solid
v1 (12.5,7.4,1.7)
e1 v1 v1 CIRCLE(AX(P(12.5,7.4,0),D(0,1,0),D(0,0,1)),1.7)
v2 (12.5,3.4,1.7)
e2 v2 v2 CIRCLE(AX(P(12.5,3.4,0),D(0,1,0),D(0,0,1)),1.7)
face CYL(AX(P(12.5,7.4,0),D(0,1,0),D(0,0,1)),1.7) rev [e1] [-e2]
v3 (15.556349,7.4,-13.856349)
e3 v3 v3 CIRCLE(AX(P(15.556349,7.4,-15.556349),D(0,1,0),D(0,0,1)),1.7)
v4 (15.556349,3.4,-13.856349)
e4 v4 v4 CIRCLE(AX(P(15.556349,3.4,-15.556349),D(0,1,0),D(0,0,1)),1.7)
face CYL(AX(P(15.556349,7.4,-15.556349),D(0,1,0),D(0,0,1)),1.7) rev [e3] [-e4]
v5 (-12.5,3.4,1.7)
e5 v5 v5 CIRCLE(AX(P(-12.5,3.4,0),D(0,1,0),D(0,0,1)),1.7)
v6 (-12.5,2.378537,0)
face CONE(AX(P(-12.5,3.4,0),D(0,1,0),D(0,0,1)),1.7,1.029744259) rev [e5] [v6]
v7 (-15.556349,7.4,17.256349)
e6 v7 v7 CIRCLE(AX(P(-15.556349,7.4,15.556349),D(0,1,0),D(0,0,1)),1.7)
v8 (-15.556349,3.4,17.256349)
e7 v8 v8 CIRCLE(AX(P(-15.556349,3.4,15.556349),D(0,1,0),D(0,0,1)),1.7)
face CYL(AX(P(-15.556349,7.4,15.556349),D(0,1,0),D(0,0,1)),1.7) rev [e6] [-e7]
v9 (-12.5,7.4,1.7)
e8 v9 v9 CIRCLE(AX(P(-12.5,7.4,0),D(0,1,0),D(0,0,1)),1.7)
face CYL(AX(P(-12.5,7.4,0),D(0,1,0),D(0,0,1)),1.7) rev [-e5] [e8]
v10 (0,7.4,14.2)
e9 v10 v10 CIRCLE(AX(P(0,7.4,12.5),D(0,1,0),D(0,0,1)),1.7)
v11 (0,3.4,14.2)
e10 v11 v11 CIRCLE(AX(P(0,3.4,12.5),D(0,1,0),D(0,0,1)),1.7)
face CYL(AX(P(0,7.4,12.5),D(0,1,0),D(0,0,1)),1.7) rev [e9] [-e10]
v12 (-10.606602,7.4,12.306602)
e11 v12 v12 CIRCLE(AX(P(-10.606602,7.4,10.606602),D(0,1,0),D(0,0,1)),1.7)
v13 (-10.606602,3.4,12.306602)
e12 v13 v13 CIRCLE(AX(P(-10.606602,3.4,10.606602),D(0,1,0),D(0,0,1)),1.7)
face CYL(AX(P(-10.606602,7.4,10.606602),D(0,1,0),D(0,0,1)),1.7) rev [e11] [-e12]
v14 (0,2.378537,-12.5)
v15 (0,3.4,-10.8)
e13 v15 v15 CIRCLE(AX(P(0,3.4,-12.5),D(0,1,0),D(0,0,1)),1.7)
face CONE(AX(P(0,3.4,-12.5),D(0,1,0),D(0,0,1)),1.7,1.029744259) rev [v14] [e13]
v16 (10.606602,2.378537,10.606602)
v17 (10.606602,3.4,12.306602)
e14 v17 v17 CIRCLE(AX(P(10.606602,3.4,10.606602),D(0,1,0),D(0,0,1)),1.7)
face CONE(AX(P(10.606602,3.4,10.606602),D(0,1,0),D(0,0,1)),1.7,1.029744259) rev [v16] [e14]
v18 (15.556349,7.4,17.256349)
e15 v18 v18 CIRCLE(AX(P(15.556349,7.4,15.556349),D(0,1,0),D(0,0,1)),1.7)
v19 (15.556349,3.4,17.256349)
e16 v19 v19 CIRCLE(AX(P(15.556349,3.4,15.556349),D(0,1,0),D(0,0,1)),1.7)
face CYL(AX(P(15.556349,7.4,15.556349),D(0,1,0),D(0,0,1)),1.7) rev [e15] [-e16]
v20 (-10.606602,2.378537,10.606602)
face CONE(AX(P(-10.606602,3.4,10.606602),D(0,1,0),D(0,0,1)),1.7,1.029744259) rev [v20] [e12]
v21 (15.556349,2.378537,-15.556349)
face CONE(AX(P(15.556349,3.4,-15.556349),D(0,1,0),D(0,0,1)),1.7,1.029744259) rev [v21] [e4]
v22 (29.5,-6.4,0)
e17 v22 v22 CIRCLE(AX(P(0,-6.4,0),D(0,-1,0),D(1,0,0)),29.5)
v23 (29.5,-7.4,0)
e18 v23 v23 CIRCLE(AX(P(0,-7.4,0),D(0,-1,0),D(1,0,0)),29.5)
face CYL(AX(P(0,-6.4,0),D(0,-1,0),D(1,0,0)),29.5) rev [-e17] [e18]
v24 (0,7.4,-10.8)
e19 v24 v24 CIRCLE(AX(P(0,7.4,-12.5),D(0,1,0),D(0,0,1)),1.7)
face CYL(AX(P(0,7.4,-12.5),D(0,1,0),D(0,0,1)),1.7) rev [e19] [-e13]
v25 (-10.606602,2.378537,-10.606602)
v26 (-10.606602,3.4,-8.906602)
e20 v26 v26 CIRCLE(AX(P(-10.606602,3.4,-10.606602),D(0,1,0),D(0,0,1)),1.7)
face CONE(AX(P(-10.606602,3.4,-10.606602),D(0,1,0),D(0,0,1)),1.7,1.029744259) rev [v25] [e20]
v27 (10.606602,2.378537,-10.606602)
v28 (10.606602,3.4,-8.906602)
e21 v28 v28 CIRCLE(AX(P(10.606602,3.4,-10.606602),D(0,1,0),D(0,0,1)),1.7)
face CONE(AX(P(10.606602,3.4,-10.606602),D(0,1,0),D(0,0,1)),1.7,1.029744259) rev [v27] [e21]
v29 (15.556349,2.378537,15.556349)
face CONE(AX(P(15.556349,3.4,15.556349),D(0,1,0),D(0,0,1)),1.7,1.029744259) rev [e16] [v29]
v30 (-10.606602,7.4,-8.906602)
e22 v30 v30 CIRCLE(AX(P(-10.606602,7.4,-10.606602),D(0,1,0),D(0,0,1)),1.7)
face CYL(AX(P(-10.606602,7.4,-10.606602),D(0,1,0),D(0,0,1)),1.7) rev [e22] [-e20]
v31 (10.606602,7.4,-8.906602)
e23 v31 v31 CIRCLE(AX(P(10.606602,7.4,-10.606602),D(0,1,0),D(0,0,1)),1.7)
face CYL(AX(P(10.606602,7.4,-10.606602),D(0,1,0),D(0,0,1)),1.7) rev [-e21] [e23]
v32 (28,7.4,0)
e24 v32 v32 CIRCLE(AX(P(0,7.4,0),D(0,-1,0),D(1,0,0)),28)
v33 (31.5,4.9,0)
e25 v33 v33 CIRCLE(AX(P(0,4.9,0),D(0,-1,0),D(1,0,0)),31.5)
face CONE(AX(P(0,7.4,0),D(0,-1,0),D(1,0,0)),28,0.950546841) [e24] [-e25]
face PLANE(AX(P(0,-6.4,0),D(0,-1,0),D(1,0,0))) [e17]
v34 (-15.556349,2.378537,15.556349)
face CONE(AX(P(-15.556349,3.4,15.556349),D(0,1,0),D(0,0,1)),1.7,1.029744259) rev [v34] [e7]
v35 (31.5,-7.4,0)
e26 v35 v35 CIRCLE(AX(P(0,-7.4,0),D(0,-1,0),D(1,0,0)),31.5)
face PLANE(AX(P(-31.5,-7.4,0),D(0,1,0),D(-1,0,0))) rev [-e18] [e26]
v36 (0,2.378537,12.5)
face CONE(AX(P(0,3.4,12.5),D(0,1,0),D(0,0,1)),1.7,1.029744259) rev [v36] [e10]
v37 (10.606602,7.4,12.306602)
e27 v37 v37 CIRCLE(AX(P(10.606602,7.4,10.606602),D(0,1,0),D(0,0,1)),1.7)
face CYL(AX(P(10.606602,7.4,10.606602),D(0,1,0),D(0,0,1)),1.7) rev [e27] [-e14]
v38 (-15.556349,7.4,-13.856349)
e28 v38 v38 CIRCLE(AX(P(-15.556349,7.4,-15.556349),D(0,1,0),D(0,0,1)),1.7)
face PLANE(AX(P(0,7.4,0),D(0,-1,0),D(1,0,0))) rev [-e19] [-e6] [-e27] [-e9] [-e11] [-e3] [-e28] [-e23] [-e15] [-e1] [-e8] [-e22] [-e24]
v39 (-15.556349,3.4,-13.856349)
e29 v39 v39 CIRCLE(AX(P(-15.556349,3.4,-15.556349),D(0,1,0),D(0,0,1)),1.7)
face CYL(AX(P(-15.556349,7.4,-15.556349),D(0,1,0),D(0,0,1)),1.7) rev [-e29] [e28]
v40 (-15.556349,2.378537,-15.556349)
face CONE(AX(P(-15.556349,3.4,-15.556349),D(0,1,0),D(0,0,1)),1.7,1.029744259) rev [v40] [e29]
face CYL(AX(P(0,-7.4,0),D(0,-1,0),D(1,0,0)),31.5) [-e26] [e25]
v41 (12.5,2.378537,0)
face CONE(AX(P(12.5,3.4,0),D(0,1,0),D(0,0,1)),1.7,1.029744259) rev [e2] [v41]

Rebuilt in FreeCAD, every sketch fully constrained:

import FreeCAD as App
import Part
import Sketcher

V = App.Vector
Q = App.Units.Quantity


def add_polygon(sketch, points):
    """Adds a closed chain of lines whose ends are joined by coincident constraints."""
    first, n = sketch.GeometryCount, len(points)
    for a, b in zip(points, points[1:] + points[:1]):
        sketch.addGeometry(Part.LineSegment(App.Vector(*a, 0), App.Vector(*b, 0)), False)
    for i in range(n):
        sketch.addConstraint(Sketcher.Constraint("Coincident", first + i, 2, first + (i + 1) % n, 1))

doc = App.newDocument("Part")
body = doc.addObject("PartDesign::Body", "Body")

# Sketch on XY plane
sketch1 = body.newObject("Sketcher::SketchObject", "Sketch")
sketch1.AttachmentSupport = (doc.getObject("XY_Plane"), [""])
sketch1.MapMode = "FlatFace"
add_polygon(sketch1, [(0, -7.4), (0, 7.4), (-28, 7.4), (-31.5, 4.9), (-31.5, -7.4)])  # lines 0-4
sketch1.addConstraint(Sketcher.Constraint("Vertical", 0))
sketch1.addConstraint(Sketcher.Constraint("Horizontal", 1))
sketch1.addConstraint(Sketcher.Constraint("Vertical", 3))
sketch1.addConstraint(Sketcher.Constraint("Horizontal", 4))
sketch1.addConstraint(Sketcher.Constraint("Symmetric", 0, 2, 4, 2, -1, 1))
sketch1.addConstraint(Sketcher.Constraint("DistanceX", 1, 2, 1, 1, Q("28 mm")))
sketch1.addConstraint(Sketcher.Constraint("DistanceX", 4, 1, 4, 2, Q("31.5 mm")))
sketch1.addConstraint(Sketcher.Constraint("DistanceY", 0, 1, 0, 2, Q("14.8 mm")))
sketch1.addConstraint(Sketcher.Constraint("DistanceY", 3, 2, 3, 1, Q("12.3 mm")))
revolution = body.newObject("PartDesign::Revolution", "Revolution")
revolution.Profile = sketch1
revolution.ReferenceAxis = (sketch1, ["V_Axis"])
revolution.Angle = 360

# Sketch on XZ plane
sketch2 = body.newObject("Sketcher::SketchObject", "Sketch001")
sketch2.AttachmentSupport = (doc.getObject("XZ_Plane"), [""])
sketch2.MapMode = "FlatFace"
sketch2.AttachmentOffset = App.Placement(V(0, 0, -7.4), App.Rotation())
sketch2.addGeometry(Part.Circle(V(-15.556349, -15.556349, 0), V(0, 0, 1), 1.7), False)
sketch2.addGeometry(Part.Circle(V(-10.606602, -10.606602, 0), V(0, 0, 1), 1.7), False)
sketch2.addGeometry(Part.Circle(V(0, -12.5, 0), V(0, 0, 1), 1.7), False)
sketch2.addGeometry(Part.Circle(V(10.606602, -10.606602, 0), V(0, 0, 1), 1.7), False)
sketch2.addGeometry(Part.Circle(V(15.556349, -15.556349, 0), V(0, 0, 1), 1.7), False)
sketch2.addGeometry(Part.Circle(V(0, 12.5, 0), V(0, 0, 1), 1.7), False)
sketch2.addGeometry(Part.Circle(V(-12.5, 0, 0), V(0, 0, 1), 1.7), False)
sketch2.addGeometry(Part.Circle(V(12.5, 0, 0), V(0, 0, 1), 1.7), False)
sketch2.addGeometry(Part.Circle(V(10.606602, 10.606602, 0), V(0, 0, 1), 1.7), False)
sketch2.addGeometry(Part.Circle(V(-10.606602, 10.606602, 0), V(0, 0, 1), 1.7), False)
sketch2.addGeometry(Part.Circle(V(-15.556349, 15.556349, 0), V(0, 0, 1), 1.7), False)
sketch2.addGeometry(Part.Circle(V(15.556349, 15.556349, 0), V(0, 0, 1), 1.7), False)
sketch2.addConstraint(Sketcher.Constraint("Equal", 0, 1))
sketch2.addConstraint(Sketcher.Constraint("Equal", 1, 2))
sketch2.addConstraint(Sketcher.Constraint("Equal", 2, 3))
sketch2.addConstraint(Sketcher.Constraint("Equal", 3, 4))
sketch2.addConstraint(Sketcher.Constraint("Equal", 4, 5))
sketch2.addConstraint(Sketcher.Constraint("Equal", 5, 6))
sketch2.addConstraint(Sketcher.Constraint("Equal", 6, 7))
sketch2.addConstraint(Sketcher.Constraint("Equal", 7, 8))
sketch2.addConstraint(Sketcher.Constraint("Equal", 8, 9))
sketch2.addConstraint(Sketcher.Constraint("Equal", 9, 10))
sketch2.addConstraint(Sketcher.Constraint("Equal", 10, 11))
sketch2.addConstraint(Sketcher.Constraint("Symmetric", 2, 3, 5, 3, -1, 1))
sketch2.addConstraint(Sketcher.Constraint("Symmetric", 6, 3, 7, 3, -1, 1))
sketch2.addConstraint(Sketcher.Constraint("Symmetric", 1, 3, 8, 3, -1, 1))
sketch2.addConstraint(Sketcher.Constraint("Symmetric", 3, 3, 9, 3, -1, 1))
sketch2.addConstraint(Sketcher.Constraint("Symmetric", 4, 3, 10, 3, -1, 1))
sketch2.addConstraint(Sketcher.Constraint("Symmetric", 0, 3, 11, 3, -1, 1))
sketch2.addConstraint(Sketcher.Constraint("Symmetric", 1, 3, 3, 3, -2))
sketch2.addConstraint(Sketcher.Constraint("Symmetric", 0, 3, 4, 3, -2))
sketch2.addConstraint(Sketcher.Constraint("PointOnObject", 2, 3, -2))
sketch2.addConstraint(Sketcher.Constraint("PointOnObject", 6, 3, -1))
sketch2.addConstraint(Sketcher.Constraint("Diameter", 0, Q("3.4 mm")))
sketch2.addConstraint(Sketcher.Constraint("DistanceY", 2, 3, 5, 3, Q("25 mm")))
sketch2.addConstraint(Sketcher.Constraint("DistanceX", 6, 3, 7, 3, Q("25 mm")))
sketch2.addConstraint(Sketcher.Constraint("DistanceX", 1, 3, -1, 1, Q("10.606602 mm")))
sketch2.addConstraint(Sketcher.Constraint("DistanceY", 1, 3, -1, 1, Q("10.606602 mm")))
sketch2.addConstraint(Sketcher.Constraint("DistanceX", 0, 3, 4, 3, Q("31.112698 mm")))
sketch2.addConstraint(Sketcher.Constraint("DistanceY", 0, 3, -1, 1, Q("15.556349 mm")))
doc.recompute()
hole = body.newObject("PartDesign::Hole", "Hole")
hole.Profile = sketch2
hole.ThreadType = "None"
hole.Diameter = 3.4
hole.DepthType = "Dimension"
hole.Depth = 4
hole.DrillPoint = "Angled"
hole.DrillPointAngle = 118
hole.Reversed = True

# Sketch on XZ plane
sketch3 = body.newObject("Sketcher::SketchObject", "Sketch002")
sketch3.AttachmentSupport = (doc.getObject("XZ_Plane"), [""])
sketch3.MapMode = "FlatFace"
sketch3.AttachmentOffset = App.Placement(V(0, 0, 7.4), App.Rotation())
sketch3.addGeometry(Part.Circle(V(0, 0, 0), V(0, 0, 1), 29.5), False)
sketch3.addConstraint(Sketcher.Constraint("Coincident", 0, 3, -1, 1))
sketch3.addConstraint(Sketcher.Constraint("Diameter", 0, Q("59 mm")))
pocket1 = body.newObject("PartDesign::Pocket", "Pocket")
pocket1.Profile = sketch3
pocket1.Length = 1

doc.recompute()
